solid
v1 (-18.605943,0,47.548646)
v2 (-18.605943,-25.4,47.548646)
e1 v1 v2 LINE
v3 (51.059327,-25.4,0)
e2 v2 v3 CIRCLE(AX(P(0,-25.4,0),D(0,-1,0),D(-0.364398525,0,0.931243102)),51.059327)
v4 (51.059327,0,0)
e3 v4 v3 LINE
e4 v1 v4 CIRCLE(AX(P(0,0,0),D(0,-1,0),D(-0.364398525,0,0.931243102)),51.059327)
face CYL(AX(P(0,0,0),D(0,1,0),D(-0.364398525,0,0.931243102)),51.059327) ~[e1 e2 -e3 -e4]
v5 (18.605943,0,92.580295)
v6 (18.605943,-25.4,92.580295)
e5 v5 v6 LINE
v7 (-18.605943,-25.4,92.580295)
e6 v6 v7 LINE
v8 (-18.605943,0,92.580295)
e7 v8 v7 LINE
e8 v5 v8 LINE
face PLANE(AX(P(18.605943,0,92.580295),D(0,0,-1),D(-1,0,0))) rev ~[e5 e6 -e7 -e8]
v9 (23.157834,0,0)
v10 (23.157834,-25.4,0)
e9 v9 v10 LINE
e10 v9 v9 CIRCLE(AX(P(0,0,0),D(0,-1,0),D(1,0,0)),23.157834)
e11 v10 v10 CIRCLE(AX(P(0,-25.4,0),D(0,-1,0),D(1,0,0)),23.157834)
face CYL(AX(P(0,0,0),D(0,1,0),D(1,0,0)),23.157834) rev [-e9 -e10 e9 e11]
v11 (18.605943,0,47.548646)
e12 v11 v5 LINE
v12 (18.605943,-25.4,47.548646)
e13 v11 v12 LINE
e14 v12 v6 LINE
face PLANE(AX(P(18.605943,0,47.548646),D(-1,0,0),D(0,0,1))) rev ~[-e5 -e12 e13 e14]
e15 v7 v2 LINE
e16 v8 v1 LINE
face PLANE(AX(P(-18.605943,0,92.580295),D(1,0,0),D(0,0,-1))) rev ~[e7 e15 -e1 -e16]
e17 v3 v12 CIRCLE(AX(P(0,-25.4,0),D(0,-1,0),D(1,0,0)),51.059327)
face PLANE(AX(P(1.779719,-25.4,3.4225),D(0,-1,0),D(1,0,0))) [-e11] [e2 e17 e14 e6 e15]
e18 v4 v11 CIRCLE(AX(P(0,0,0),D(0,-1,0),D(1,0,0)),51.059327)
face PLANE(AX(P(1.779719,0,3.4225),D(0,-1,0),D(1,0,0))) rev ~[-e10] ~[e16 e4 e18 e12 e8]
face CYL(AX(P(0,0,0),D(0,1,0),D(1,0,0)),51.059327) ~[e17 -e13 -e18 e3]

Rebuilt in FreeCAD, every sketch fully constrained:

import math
import FreeCAD as App
import Part
import Sketcher
Q = App.Units.Quantity

doc = App.newDocument("Part")
body = doc.addObject("PartDesign::Body", "Body")

# Sketch on XZ plane
sketch1 = body.newObject("Sketcher::SketchObject", "Sketch")
sketch1.AttachmentSupport = (doc.getObject("XZ_Plane"), [""])
sketch1.MapMode = "FlatFace"
sketch1.addGeometry(Part.ArcOfCircle(Part.Circle(App.Vector(0, 0, 0), App.Vector(0, 0, 1), 51), math.radians(111), math.radians(360)), False)
sketch1.addGeometry(Part.ArcOfCircle(Part.Circle(App.Vector(0, 0, 0), App.Vector(0, 0, 1), 51), math.radians(0), math.radians(69)), False)
sketch1.addGeometry(Part.LineSegment(App.Vector(19, 48, 0), App.Vector(19, 93, 0)), False)
sketch1.addGeometry(Part.LineSegment(App.Vector(19, 93, 0), App.Vector(-19, 93, 0)), False)
sketch1.addGeometry(Part.LineSegment(App.Vector(-19, 93, 0), App.Vector(-19, 48, 0)), False)
sketch1.addGeometry(Part.Circle(App.Vector(0, 0, 0), App.Vector(0, 0, 1), 23), False)
sketch1.addConstraint(Sketcher.Constraint("Tangent", 0, 2, 1, 1))
sketch1.addConstraint(Sketcher.Constraint("Coincident", 1, 2, 2, 1))
sketch1.addConstraint(Sketcher.Constraint("Coincident", 2, 2, 3, 1))
sketch1.addConstraint(Sketcher.Constraint("Coincident", 3, 2, 4, 1))
sketch1.addConstraint(Sketcher.Constraint("Coincident", 4, 2, 0, 1))
sketch1.addConstraint(Sketcher.Constraint("Vertical", 2))
sketch1.addConstraint(Sketcher.Constraint("Horizontal", 3))
sketch1.addConstraint(Sketcher.Constraint("Vertical", 4))
sketch1.addConstraint(Sketcher.Constraint("Coincident", 0, 3, -1, 1))
sketch1.addConstraint(Sketcher.Constraint("Coincident", 5, 3, -1, 1))
sketch1.addConstraint(Sketcher.Constraint("Equal", 0, 1))
sketch1.addConstraint(Sketcher.Constraint("PointOnObject", 0, 2, -1))
sketch1.addConstraint(Sketcher.Constraint("Horizontal", 1, 2, 4, 2))
sketch1.addConstraint(Sketcher.Constraint("Diameter", 5, 46.315669))
sketch1.addConstraint(Sketcher.Constraint("Radius", 0, 51.059327))
sketch1.addConstraint(Sketcher.Constraint("DistanceY", 2, 1, 2, 2, 45.031649))
sketch1.addConstraint(Sketcher.Constraint("DistanceX", 3, 2, 3, 1, 37.211887))
pad1 = body.newObject("PartDesign::Pad", "Pad")
pad1.Profile = sketch1
pad1.Length = Q("1 in")

doc.recompute()
